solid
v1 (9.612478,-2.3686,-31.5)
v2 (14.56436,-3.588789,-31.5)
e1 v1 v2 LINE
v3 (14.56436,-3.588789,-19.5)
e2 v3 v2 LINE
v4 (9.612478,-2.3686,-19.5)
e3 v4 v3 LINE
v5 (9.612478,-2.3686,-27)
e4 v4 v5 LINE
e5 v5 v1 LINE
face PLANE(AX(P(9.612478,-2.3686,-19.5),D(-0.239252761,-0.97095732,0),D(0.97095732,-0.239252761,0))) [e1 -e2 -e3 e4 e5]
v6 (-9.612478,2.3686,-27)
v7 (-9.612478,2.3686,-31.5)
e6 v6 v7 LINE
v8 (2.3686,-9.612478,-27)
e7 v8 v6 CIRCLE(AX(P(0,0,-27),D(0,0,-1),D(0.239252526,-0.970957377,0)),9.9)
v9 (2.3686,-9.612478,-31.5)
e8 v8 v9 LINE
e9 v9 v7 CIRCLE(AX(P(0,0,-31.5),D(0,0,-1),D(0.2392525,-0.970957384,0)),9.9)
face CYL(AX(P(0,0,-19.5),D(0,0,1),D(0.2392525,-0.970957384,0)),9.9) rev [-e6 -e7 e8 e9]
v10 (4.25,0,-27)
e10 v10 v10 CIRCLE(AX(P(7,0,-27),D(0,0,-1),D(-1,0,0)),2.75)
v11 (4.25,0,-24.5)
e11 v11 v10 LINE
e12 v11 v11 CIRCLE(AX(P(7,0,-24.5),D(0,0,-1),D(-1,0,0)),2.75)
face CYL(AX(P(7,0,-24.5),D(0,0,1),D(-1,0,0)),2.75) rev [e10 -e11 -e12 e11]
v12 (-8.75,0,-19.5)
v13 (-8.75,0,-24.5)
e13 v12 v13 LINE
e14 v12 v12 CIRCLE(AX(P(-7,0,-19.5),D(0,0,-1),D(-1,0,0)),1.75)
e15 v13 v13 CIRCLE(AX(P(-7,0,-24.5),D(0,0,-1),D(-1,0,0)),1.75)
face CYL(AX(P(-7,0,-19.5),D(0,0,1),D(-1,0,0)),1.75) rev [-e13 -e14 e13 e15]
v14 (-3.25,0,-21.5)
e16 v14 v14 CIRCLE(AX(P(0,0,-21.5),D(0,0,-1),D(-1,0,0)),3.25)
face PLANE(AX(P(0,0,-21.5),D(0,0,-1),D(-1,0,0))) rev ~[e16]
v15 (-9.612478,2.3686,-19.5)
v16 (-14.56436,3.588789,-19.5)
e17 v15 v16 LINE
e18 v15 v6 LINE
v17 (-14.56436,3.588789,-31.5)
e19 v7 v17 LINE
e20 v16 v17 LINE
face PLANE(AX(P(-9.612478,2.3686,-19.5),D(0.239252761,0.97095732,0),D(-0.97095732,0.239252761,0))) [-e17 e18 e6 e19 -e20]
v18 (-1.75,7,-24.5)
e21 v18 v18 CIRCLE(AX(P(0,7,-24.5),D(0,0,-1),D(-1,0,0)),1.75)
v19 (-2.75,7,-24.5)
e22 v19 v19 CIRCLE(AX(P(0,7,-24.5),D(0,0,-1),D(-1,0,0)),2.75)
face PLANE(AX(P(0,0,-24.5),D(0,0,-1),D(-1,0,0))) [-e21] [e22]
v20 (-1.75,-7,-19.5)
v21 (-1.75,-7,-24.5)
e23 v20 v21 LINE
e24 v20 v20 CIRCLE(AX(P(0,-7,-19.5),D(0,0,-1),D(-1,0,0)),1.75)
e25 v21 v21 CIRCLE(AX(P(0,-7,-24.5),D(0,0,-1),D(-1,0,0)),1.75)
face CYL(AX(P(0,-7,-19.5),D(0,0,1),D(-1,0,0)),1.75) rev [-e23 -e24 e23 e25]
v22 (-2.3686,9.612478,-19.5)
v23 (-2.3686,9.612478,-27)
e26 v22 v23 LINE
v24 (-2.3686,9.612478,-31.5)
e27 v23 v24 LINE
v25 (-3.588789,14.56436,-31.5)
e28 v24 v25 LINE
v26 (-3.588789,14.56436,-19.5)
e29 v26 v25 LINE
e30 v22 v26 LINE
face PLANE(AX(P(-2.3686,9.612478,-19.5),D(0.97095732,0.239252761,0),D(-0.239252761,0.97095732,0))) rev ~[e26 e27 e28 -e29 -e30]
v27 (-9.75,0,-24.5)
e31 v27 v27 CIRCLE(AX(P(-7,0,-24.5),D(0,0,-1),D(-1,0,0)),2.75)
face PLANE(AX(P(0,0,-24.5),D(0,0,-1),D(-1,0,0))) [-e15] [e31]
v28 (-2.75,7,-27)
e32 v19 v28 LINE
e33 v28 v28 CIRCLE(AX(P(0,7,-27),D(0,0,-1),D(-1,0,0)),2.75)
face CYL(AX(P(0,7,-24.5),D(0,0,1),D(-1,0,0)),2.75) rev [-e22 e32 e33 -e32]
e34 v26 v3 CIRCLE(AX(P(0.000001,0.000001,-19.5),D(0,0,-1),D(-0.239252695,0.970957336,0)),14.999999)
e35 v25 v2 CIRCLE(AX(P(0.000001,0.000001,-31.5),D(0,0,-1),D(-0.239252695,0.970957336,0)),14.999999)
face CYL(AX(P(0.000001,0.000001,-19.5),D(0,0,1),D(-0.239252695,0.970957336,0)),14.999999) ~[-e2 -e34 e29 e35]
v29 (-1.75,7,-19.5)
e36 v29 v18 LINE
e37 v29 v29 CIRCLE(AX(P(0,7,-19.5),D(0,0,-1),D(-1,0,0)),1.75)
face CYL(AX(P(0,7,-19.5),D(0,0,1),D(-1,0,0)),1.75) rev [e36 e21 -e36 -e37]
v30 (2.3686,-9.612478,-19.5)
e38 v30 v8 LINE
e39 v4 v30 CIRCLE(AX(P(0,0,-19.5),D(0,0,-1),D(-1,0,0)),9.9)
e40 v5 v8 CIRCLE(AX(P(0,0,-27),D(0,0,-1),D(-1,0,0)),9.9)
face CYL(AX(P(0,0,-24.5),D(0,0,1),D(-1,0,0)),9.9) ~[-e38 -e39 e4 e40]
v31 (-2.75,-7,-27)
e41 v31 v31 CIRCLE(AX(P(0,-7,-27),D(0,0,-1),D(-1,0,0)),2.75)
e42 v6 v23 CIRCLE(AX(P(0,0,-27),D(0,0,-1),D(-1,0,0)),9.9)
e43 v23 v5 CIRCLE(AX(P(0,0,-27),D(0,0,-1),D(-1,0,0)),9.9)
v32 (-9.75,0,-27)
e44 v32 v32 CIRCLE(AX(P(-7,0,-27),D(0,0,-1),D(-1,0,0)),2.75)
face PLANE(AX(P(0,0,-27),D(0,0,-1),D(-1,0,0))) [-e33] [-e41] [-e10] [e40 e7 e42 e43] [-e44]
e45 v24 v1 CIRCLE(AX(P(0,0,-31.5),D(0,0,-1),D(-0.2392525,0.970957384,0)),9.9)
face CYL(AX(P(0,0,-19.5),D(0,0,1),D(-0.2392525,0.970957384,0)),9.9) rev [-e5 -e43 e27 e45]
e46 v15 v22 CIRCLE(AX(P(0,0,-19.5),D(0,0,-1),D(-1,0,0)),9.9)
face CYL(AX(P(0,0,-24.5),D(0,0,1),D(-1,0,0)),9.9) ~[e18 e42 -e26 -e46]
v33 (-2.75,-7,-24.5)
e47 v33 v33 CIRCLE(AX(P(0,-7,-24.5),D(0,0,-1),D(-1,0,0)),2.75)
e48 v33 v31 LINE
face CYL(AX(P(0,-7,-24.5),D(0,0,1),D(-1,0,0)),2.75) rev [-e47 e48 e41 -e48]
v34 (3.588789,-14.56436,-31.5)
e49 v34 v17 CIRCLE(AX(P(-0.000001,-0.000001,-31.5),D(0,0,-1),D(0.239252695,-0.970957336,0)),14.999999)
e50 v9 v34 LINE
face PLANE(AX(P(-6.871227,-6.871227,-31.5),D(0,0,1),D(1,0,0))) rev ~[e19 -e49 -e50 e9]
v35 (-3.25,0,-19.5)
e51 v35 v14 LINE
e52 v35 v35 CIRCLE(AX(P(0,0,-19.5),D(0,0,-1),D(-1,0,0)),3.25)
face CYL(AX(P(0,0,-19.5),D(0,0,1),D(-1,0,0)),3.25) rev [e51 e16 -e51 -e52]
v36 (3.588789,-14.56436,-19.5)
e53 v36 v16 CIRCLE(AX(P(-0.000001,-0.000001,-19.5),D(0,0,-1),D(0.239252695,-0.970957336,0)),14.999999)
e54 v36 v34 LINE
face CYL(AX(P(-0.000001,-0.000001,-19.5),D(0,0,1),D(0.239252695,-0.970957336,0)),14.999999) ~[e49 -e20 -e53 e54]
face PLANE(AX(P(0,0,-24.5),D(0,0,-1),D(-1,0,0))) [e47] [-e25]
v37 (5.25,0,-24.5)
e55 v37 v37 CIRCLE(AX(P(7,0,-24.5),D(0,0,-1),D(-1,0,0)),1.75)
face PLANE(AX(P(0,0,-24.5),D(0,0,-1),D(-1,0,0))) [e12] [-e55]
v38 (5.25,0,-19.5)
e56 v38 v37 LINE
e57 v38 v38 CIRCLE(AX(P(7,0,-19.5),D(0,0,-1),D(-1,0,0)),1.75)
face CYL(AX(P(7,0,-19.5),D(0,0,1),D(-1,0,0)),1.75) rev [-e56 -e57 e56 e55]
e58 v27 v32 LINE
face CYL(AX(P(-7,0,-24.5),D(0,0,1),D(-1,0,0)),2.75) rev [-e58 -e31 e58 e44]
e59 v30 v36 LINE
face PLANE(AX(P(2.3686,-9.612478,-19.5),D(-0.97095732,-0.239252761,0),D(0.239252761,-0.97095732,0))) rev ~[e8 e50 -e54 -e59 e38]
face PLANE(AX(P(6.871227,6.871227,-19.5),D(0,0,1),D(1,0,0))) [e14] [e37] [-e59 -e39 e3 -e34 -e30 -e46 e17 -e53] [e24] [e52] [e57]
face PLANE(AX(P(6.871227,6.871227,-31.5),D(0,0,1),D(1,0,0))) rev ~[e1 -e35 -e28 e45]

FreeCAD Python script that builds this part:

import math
import FreeCAD as App
import Part
import Sketcher
from FreeCAD import Vector

doc = App.newDocument("Part")
params = doc.addObject("Spreadsheet::Sheet", "Params")
for row, (alias, value) in enumerate([
    ("sketch1_diameter", "19.8 mm"),
    ("sketch1_diameter2", "3.5 mm"),
    ("pad1_length", "5 mm"),
    ("sketch2_diameter", "19.8 mm"),
    ("sketch2_diameter2", "5.5 mm"),
    ("pad2_length", "2.5 mm"),
    ("sketch3_diameter", "6.5 mm"),
    ("pocket1_length", "2 mm"),
    ("sketch4_radius", "14.999999 mm"),
    ("sketch4_radius2", "9.9 mm"),
    ("pad3_length", "12 mm"),
], start=1):
    params.set(f"A{row}", alias)
    params.set(f"B{row}", "=" + value)
    params.setAlias(f"B{row}", alias)

body = doc.addObject("PartDesign::Body", "Body")

# Sketch on XY plane
sketch1 = body.newObject("Sketcher::SketchObject", "Sketch")
sketch1.AttachmentSupport = (doc.getObject("XY_Plane"), [""])
sketch1.MapMode = "FlatFace"
sketch1.AttachmentOffset = App.Placement(Vector(0, 0, -19.5), App.Rotation())
sketch1.addGeometry([
    Part.Circle(Vector(0, 0, 0), Vector(0, 0, 1), 9.9),  # 0
    Part.Circle(Vector(0, -7, 0), Vector(0, 0, 1), 1.75),  # 1
    Part.Circle(Vector(7, 0, 0), Vector(0, 0, 1), 1.75),  # 2
    Part.Circle(Vector(-7, 0, 0), Vector(0, 0, 1), 1.75),  # 3
    Part.Circle(Vector(0, 7, 0), Vector(0, 0, 1), 1.75),  # 4
], False)
sketch1.addConstraint([
    Sketcher.Constraint("Coincident", 0, 3, -1, 1),
    Sketcher.Constraint("Equal", 1, 2),
    Sketcher.Constraint("Equal", 2, 3),
    Sketcher.Constraint("Equal", 3, 4),
    Sketcher.Constraint("Symmetric", 2, 3, 3, 3, -1, 1),
    Sketcher.Constraint("Symmetric", 1, 3, 4, 3, -1, 1),
    Sketcher.Constraint("PointOnObject", 1, 3, -2),
    Sketcher.Constraint("PointOnObject", 2, 3, -1),
    Sketcher.Constraint("Diameter", 0, 19.8),
    Sketcher.Constraint("Diameter", 1, 3.5),
    Sketcher.Constraint("DistanceY", 1, 3, -1, 1, 7.0),
    Sketcher.Constraint("DistanceX", -1, 1, 2, 3, 7.0),
])
sketch1.setExpression("Constraints[8]", "Params.sketch1_diameter")
sketch1.setExpression("Constraints[9]", "Params.sketch1_diameter2")
pad1 = body.newObject("PartDesign::Pad", "Pad")
pad1.Profile = sketch1
pad1.setExpression("Length", "Params.pad1_length")
pad1.Reversed = True

# Sketch on XY plane
sketch2 = body.newObject("Sketcher::SketchObject", "Sketch001")
sketch2.AttachmentSupport = (doc.getObject("XY_Plane"), [""])
sketch2.MapMode = "FlatFace"
sketch2.AttachmentOffset = App.Placement(Vector(0, 0, -24.5), App.Rotation())
sketch2.addGeometry([
    Part.Circle(Vector(0, 0, 0), Vector(0, 0, 1), 9.9),  # 0
    Part.Circle(Vector(0, -7, 0), Vector(0, 0, 1), 2.75),  # 1
    Part.Circle(Vector(7, 0, 0), Vector(0, 0, 1), 2.75),  # 2
    Part.Circle(Vector(-7, 0, 0), Vector(0, 0, 1), 2.75),  # 3
    Part.Circle(Vector(0, 7, 0), Vector(0, 0, 1), 2.75),  # 4
], False)
sketch2.addConstraint([
    Sketcher.Constraint("Coincident", 0, 3, -1, 1),
    Sketcher.Constraint("Equal", 1, 2),
    Sketcher.Constraint("Equal", 2, 3),
    Sketcher.Constraint("Equal", 3, 4),
    Sketcher.Constraint("Symmetric", 2, 3, 3, 3, -1, 1),
    Sketcher.Constraint("Symmetric", 1, 3, 4, 3, -1, 1),
    Sketcher.Constraint("PointOnObject", 1, 3, -2),
    Sketcher.Constraint("PointOnObject", 2, 3, -1),
    Sketcher.Constraint("Diameter", 0, 19.8),
    Sketcher.Constraint("Diameter", 1, 5.5),
    Sketcher.Constraint("DistanceY", 1, 3, -1, 1, 7.0),
    Sketcher.Constraint("DistanceX", -1, 1, 2, 3, 7.0),
])
sketch2.setExpression("Constraints[8]", "Params.sketch2_diameter")
sketch2.setExpression("Constraints[9]", "Params.sketch2_diameter2")
pad2 = body.newObject("PartDesign::Pad", "Pad001")
pad2.Profile = sketch2
pad2.setExpression("Length", "Params.pad2_length")
pad2.Reversed = True

# Sketch on XY plane
sketch3 = body.newObject("Sketcher::SketchObject", "Sketch002")
sketch3.AttachmentSupport = (doc.getObject("XY_Plane"), [""])
sketch3.MapMode = "FlatFace"
sketch3.AttachmentOffset = App.Placement(Vector(0, 0, -19.5), App.Rotation())
sketch3.addGeometry(Part.Circle(Vector(0, 0, 0), Vector(0, 0, 1), 3.25), False)
sketch3.addConstraint([
    Sketcher.Constraint("Coincident", 0, 3, -1, 1),
    Sketcher.Constraint("Diameter", 0, 6.5),
])
sketch3.setExpression("Constraints[1]", "Params.sketch3_diameter")
pocket1 = body.newObject("PartDesign::Pocket", "Pocket")
pocket1.Profile = sketch3
pocket1.setExpression("Length", "Params.pocket1_length")

# Sketch on XY plane
sketch4 = body.newObject("Sketcher::SketchObject", "Sketch003")
sketch4.AttachmentSupport = (doc.getObject("XY_Plane"), [""])
sketch4.MapMode = "FlatFace"
sketch4.AttachmentOffset = App.Placement(Vector(0, 0, -19.5), App.Rotation())
sketch4.addGeometry([
    Part.ArcOfCircle(Part.Circle(Vector(0, 0, 0), Vector(0, 0, 1), 9.9), math.radians(-13.842427), math.radians(103.842427)),  # 0
    Part.LineSegment(Vector(-2.3686, 9.612478, 0), Vector(-3.588789, 14.56436, 0)),  # 1
    Part.ArcOfCircle(Part.Circle(Vector(0.000001, 0.000001, 0), Vector(0, 0, 1), 14.999999), math.radians(-13.842438), math.radians(103.842438)),  # 2
    Part.LineSegment(Vector(14.56436, -3.588789, 0), Vector(9.612478, -2.3686, 0)),  # 3
    Part.LineSegment(Vector(-14.56436, 3.588789, 0), Vector(-9.612478, 2.3686, 0)),  # 4
    Part.ArcOfCircle(Part.Circle(Vector(0, 0, 0), Vector(0, 0, 1), 9.9), math.radians(166.157573), math.radians(283.842427)),  # 5
    Part.LineSegment(Vector(2.3686, -9.612478, 0), Vector(3.588789, -14.56436, 0)),  # 6
    Part.ArcOfCircle(Part.Circle(Vector(-0.000001, -0.000001, 0), Vector(0, 0, 1), 14.999999), math.radians(166.157562), math.radians(283.842438)),  # 7
], False)
sketch4.addConstraint([
    Sketcher.Constraint("Coincident", 0, 2, 1, 1),
    Sketcher.Constraint("Coincident", 1, 2, 2, 2),
    Sketcher.Constraint("Coincident", 2, 1, 3, 1),
    Sketcher.Constraint("Coincident", 3, 2, 0, 1),
    Sketcher.Constraint("Coincident", 4, 2, 5, 1),
    Sketcher.Constraint("Coincident", 5, 2, 6, 1),
    Sketcher.Constraint("Coincident", 6, 2, 7, 2),
    Sketcher.Constraint("Coincident", 7, 1, 4, 1),
    Sketcher.Constraint("Coincident", 0, 3, -1, 1),
    Sketcher.Constraint("Coincident", 2, 3, -1, 1),
    Sketcher.Constraint("Coincident", 5, 3, -1, 1),
    Sketcher.Constraint("Coincident", 7, 3, -1, 1),
    Sketcher.Constraint("Equal", 0, 5),
    Sketcher.Constraint("Equal", 2, 7),
    Sketcher.Constraint("Parallel", 3, 4),
    Sketcher.Constraint("Parallel", 1, 6),
    Sketcher.Constraint("Radius", 2, 14.999999),
    Sketcher.Constraint("Radius", 0, 9.9),
    Sketcher.Constraint("DistanceX", 0, 2, -1, 1, 2.3686),
    Sketcher.Constraint("DistanceY", 3, 2, -1, 1, 2.3686),
    Sketcher.Constraint("DistanceY", -1, 1, 4, 2, 2.3686),
    Sketcher.Constraint("DistanceX", -1, 1, 5, 2, 2.3686),
    Sketcher.Constraint("DistanceX", 1, 2, -1, 1, 3.588789),
    Sketcher.Constraint("DistanceX", -1, 1, 2, 1, 14.56436),
])
sketch4.setExpression("Constraints[16]", "Params.sketch4_radius")
sketch4.setExpression("Constraints[17]", "Params.sketch4_radius2")
pad3 = body.newObject("PartDesign::Pad", "Pad002")
pad3.Profile = sketch4
pad3.setExpression("Length", "Params.pad3_length")
pad3.Reversed = True

doc.recompute()
